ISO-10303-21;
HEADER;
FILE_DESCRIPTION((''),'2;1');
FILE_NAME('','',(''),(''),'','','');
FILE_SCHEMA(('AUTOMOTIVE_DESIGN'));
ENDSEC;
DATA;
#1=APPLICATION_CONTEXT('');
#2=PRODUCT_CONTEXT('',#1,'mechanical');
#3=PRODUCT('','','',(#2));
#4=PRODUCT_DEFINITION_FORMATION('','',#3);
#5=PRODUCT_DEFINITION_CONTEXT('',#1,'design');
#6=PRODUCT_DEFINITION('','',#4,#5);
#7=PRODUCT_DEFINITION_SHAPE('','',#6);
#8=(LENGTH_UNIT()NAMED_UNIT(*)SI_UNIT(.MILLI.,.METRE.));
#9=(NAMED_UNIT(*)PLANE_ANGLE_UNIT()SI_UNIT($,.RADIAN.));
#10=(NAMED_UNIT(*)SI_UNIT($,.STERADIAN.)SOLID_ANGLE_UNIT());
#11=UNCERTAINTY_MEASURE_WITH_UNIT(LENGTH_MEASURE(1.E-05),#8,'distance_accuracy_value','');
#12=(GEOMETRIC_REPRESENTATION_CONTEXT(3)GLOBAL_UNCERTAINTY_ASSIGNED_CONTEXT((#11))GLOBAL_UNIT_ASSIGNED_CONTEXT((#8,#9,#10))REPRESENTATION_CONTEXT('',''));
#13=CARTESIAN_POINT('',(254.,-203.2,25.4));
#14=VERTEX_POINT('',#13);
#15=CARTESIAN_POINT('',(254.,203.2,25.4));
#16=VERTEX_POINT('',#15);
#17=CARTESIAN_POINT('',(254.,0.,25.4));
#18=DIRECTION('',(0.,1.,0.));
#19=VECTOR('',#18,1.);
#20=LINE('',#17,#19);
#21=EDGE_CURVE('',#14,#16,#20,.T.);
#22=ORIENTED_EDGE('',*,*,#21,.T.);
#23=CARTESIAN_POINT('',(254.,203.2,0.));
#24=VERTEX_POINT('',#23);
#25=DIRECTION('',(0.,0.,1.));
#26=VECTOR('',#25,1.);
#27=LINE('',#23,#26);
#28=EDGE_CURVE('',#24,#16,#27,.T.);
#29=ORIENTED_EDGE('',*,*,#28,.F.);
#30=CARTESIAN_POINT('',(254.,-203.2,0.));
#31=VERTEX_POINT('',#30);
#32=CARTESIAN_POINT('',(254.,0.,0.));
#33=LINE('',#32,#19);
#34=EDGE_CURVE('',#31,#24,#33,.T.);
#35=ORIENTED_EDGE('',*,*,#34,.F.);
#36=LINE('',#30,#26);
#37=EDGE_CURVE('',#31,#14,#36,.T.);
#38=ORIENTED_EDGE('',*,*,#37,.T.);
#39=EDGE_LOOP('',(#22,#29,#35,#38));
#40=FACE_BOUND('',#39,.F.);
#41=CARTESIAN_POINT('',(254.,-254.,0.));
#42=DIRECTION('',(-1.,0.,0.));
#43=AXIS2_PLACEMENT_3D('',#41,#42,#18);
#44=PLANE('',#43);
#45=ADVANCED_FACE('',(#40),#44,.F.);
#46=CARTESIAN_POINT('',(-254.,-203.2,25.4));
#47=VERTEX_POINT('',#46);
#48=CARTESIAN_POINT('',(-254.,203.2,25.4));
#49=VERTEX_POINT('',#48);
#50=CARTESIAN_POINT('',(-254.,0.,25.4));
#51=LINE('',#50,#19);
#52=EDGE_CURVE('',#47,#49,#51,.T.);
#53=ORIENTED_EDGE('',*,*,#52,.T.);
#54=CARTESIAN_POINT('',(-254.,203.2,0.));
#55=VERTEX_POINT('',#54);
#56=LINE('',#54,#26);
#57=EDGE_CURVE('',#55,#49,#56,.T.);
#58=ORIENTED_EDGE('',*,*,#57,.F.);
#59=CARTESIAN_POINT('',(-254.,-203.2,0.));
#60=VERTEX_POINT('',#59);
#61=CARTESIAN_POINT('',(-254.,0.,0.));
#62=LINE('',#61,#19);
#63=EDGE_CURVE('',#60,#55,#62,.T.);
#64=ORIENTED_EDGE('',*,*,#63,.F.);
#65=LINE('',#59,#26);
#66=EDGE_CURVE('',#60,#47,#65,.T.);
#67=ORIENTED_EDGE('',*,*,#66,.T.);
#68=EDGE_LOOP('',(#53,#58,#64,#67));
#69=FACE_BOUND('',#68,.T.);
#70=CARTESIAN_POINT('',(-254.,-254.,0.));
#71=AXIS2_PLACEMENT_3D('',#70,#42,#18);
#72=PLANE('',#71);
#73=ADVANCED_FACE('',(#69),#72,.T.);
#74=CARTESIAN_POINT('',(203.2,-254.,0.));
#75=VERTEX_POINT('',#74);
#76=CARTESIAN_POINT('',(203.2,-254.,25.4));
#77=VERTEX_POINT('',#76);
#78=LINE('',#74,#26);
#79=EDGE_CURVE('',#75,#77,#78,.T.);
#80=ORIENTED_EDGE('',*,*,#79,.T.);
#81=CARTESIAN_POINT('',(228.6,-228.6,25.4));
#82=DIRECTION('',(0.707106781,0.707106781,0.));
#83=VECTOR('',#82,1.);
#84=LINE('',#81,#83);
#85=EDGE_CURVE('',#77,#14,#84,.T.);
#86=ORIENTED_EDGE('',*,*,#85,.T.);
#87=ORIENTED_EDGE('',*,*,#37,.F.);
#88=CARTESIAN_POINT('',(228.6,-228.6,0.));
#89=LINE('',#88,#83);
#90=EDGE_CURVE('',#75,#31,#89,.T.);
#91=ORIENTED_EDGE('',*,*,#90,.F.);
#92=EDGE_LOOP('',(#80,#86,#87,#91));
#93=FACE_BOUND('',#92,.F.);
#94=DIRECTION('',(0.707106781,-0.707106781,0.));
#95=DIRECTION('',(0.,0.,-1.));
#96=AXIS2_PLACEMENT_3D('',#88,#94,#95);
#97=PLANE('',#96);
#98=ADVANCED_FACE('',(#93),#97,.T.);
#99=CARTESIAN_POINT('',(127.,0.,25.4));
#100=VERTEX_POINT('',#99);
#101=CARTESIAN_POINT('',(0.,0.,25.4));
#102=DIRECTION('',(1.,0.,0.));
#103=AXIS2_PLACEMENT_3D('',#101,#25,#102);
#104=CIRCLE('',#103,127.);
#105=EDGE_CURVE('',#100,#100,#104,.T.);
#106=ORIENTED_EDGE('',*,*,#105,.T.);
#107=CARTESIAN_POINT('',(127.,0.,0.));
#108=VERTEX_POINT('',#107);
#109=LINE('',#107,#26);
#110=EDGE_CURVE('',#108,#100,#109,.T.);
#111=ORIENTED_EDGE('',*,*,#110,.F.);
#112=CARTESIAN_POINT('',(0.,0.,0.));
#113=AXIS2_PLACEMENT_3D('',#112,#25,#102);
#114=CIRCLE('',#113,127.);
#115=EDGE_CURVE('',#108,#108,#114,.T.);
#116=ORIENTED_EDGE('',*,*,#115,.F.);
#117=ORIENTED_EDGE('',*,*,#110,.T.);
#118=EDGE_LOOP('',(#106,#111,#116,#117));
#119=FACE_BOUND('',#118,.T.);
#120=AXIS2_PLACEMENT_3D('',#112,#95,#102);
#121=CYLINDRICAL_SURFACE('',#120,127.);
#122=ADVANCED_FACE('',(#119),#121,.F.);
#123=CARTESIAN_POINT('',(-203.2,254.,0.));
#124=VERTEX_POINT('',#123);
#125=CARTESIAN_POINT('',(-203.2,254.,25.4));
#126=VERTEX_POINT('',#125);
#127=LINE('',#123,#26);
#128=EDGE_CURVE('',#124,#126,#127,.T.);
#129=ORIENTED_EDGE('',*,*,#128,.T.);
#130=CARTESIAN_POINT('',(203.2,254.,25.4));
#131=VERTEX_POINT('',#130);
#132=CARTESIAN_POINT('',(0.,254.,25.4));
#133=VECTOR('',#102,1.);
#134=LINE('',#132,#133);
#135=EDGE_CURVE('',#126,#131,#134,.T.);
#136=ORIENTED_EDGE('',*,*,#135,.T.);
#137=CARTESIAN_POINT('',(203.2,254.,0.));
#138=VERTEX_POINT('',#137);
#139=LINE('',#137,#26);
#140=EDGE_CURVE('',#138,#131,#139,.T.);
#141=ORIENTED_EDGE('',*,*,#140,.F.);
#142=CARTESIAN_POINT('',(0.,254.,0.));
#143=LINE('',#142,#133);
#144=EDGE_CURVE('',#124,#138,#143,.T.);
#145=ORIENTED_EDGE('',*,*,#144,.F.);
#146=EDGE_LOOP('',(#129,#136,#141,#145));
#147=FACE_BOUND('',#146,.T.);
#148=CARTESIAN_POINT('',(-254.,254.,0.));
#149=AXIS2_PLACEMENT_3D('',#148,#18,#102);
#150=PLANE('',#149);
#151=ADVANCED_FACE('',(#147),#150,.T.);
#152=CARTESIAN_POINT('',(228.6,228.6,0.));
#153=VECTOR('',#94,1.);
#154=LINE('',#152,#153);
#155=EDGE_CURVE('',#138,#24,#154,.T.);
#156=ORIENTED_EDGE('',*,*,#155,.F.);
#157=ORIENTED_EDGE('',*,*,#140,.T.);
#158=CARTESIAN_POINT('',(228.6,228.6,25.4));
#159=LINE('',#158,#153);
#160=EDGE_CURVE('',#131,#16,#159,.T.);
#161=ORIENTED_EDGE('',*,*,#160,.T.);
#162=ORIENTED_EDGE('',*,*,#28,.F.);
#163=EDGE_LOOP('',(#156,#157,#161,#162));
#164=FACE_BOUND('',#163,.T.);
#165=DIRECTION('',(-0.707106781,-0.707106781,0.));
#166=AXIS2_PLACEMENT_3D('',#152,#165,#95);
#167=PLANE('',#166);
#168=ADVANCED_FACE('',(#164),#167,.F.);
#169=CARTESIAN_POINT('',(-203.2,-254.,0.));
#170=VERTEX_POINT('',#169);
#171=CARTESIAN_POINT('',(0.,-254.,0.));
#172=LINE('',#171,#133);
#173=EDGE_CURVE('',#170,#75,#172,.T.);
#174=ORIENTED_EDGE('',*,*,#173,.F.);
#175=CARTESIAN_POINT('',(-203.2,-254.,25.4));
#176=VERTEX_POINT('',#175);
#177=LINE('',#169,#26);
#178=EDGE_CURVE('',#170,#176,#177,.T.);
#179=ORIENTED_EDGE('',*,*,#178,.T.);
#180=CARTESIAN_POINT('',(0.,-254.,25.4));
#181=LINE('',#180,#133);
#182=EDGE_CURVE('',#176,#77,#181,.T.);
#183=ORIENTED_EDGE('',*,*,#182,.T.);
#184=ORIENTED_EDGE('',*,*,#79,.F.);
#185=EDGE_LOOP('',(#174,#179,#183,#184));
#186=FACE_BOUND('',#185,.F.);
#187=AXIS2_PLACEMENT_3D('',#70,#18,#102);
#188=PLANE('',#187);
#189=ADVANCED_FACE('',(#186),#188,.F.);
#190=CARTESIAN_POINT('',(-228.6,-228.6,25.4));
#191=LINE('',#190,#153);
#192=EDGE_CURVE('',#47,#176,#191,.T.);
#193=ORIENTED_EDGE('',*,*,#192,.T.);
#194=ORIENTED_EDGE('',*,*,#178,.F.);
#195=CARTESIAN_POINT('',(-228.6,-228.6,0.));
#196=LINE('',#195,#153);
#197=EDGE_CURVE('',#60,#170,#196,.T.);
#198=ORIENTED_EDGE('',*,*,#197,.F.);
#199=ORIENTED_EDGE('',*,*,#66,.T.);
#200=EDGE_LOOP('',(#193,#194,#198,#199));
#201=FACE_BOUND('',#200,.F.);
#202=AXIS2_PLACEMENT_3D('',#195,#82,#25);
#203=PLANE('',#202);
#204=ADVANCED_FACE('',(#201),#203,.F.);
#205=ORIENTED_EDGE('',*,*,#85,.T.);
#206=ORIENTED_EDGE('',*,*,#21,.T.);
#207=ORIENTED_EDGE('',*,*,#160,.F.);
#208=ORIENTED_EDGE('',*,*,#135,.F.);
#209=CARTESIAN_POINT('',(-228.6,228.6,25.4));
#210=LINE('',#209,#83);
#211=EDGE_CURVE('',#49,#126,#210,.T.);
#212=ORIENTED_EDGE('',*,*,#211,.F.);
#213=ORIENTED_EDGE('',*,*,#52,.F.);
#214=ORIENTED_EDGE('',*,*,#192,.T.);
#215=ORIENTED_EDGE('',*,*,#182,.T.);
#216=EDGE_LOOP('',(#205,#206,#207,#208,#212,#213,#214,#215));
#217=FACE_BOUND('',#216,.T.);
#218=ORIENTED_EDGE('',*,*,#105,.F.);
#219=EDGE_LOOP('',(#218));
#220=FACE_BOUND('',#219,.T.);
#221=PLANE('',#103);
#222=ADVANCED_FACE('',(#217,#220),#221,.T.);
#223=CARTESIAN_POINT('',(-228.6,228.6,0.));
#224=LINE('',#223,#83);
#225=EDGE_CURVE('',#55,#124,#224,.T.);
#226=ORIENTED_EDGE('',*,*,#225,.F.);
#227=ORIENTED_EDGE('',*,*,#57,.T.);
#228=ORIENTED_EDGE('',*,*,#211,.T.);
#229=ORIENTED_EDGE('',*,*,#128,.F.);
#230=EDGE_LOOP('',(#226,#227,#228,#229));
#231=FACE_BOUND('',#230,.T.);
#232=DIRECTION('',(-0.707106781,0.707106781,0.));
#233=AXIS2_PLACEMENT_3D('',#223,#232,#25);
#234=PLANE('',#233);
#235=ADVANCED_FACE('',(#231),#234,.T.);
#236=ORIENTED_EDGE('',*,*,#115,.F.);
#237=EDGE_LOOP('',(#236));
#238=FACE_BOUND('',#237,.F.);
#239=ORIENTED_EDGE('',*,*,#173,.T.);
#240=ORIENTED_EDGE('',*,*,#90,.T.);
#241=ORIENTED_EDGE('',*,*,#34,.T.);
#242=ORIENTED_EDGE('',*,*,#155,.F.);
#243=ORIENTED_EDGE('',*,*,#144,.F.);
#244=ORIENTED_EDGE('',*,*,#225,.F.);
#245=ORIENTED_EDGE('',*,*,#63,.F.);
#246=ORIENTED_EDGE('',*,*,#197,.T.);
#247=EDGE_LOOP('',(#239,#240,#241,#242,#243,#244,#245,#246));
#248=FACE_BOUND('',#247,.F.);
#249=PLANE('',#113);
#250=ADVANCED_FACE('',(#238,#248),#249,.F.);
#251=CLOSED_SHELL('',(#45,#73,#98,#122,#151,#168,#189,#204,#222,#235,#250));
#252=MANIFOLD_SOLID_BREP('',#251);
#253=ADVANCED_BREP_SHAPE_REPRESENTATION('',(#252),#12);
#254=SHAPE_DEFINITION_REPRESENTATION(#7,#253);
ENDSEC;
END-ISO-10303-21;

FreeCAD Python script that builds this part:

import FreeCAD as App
import Part
import Sketcher
from FreeCAD import Vector
Q = App.Units.Quantity


def edges_at(feature, points):
    """Names of the edges that pass closest to the given points."""
    edges = feature.Shape.Edges
    near = lambda p: min(range(len(edges)), key=lambda i: edges[i].distToShape(Part.Vertex(*p))[0])
    return sorted({f"Edge{near(p) + 1}" for p in points})

doc = App.newDocument("Part")
body = doc.addObject("PartDesign::Body", "Body")

# Sketch on XY plane
sketch1 = body.newObject("Sketcher::SketchObject", "Sketch")
sketch1.AttachmentSupport = (doc.getObject("XY_Plane"), [""])
sketch1.MapMode = "FlatFace"
sketch1.addGeometry(Part.LineSegment(Vector(-254, 254, 0), Vector(-254, -254, 0)), False)
sketch1.addGeometry(Part.LineSegment(Vector(-254, -254, 0), Vector(254, -254, 0)), False)
sketch1.addGeometry(Part.LineSegment(Vector(254, -254, 0), Vector(254, 254, 0)), False)
sketch1.addGeometry(Part.LineSegment(Vector(254, 254, 0), Vector(-254, 254, 0)), False)
sketch1.addGeometry(Part.Circle(Vector(0, 0, 0), Vector(0, 0, 1), 127), False)
sketch1.addConstraint(Sketcher.Constraint("Coincident", 0, 2, 1, 1))
sketch1.addConstraint(Sketcher.Constraint("Coincident", 1, 2, 2, 1))
sketch1.addConstraint(Sketcher.Constraint("Coincident", 2, 2, 3, 1))
sketch1.addConstraint(Sketcher.Constraint("Coincident", 3, 2, 0, 1))
sketch1.addConstraint(Sketcher.Constraint("Vertical", 0))
sketch1.addConstraint(Sketcher.Constraint("Horizontal", 1))
sketch1.addConstraint(Sketcher.Constraint("Vertical", 2))
sketch1.addConstraint(Sketcher.Constraint("Horizontal", 3))
sketch1.addConstraint(Sketcher.Constraint("Coincident", 4, 3, -1, 1))
sketch1.addConstraint(Sketcher.Constraint("Symmetric", 0, 2, 2, 2, -1, 1))
sketch1.addConstraint(Sketcher.Constraint("Equal", 3, 0))
sketch1.addConstraint(Sketcher.Constraint("Diameter", 4, Q("10 in")))
sketch1.addConstraint(Sketcher.Constraint("DistanceX", 1, 1, 1, 2, Q("20 in")))
pad1 = body.newObject("PartDesign::Pad", "Pad")
pad1.Profile = sketch1
pad1.Length = Q("1 in")
doc.recompute()

chamfer = body.newObject("PartDesign::Chamfer", "Chamfer")
chamfer.Base = (pad1, edges_at(pad1, [
    (-254, -254, 12.7),
    (254, -254, 12.7),
    (254, 254, 12.7),
    (-254, 254, 12.7),
]))
chamfer.Size = Q("2 in")

doc.recompute()
